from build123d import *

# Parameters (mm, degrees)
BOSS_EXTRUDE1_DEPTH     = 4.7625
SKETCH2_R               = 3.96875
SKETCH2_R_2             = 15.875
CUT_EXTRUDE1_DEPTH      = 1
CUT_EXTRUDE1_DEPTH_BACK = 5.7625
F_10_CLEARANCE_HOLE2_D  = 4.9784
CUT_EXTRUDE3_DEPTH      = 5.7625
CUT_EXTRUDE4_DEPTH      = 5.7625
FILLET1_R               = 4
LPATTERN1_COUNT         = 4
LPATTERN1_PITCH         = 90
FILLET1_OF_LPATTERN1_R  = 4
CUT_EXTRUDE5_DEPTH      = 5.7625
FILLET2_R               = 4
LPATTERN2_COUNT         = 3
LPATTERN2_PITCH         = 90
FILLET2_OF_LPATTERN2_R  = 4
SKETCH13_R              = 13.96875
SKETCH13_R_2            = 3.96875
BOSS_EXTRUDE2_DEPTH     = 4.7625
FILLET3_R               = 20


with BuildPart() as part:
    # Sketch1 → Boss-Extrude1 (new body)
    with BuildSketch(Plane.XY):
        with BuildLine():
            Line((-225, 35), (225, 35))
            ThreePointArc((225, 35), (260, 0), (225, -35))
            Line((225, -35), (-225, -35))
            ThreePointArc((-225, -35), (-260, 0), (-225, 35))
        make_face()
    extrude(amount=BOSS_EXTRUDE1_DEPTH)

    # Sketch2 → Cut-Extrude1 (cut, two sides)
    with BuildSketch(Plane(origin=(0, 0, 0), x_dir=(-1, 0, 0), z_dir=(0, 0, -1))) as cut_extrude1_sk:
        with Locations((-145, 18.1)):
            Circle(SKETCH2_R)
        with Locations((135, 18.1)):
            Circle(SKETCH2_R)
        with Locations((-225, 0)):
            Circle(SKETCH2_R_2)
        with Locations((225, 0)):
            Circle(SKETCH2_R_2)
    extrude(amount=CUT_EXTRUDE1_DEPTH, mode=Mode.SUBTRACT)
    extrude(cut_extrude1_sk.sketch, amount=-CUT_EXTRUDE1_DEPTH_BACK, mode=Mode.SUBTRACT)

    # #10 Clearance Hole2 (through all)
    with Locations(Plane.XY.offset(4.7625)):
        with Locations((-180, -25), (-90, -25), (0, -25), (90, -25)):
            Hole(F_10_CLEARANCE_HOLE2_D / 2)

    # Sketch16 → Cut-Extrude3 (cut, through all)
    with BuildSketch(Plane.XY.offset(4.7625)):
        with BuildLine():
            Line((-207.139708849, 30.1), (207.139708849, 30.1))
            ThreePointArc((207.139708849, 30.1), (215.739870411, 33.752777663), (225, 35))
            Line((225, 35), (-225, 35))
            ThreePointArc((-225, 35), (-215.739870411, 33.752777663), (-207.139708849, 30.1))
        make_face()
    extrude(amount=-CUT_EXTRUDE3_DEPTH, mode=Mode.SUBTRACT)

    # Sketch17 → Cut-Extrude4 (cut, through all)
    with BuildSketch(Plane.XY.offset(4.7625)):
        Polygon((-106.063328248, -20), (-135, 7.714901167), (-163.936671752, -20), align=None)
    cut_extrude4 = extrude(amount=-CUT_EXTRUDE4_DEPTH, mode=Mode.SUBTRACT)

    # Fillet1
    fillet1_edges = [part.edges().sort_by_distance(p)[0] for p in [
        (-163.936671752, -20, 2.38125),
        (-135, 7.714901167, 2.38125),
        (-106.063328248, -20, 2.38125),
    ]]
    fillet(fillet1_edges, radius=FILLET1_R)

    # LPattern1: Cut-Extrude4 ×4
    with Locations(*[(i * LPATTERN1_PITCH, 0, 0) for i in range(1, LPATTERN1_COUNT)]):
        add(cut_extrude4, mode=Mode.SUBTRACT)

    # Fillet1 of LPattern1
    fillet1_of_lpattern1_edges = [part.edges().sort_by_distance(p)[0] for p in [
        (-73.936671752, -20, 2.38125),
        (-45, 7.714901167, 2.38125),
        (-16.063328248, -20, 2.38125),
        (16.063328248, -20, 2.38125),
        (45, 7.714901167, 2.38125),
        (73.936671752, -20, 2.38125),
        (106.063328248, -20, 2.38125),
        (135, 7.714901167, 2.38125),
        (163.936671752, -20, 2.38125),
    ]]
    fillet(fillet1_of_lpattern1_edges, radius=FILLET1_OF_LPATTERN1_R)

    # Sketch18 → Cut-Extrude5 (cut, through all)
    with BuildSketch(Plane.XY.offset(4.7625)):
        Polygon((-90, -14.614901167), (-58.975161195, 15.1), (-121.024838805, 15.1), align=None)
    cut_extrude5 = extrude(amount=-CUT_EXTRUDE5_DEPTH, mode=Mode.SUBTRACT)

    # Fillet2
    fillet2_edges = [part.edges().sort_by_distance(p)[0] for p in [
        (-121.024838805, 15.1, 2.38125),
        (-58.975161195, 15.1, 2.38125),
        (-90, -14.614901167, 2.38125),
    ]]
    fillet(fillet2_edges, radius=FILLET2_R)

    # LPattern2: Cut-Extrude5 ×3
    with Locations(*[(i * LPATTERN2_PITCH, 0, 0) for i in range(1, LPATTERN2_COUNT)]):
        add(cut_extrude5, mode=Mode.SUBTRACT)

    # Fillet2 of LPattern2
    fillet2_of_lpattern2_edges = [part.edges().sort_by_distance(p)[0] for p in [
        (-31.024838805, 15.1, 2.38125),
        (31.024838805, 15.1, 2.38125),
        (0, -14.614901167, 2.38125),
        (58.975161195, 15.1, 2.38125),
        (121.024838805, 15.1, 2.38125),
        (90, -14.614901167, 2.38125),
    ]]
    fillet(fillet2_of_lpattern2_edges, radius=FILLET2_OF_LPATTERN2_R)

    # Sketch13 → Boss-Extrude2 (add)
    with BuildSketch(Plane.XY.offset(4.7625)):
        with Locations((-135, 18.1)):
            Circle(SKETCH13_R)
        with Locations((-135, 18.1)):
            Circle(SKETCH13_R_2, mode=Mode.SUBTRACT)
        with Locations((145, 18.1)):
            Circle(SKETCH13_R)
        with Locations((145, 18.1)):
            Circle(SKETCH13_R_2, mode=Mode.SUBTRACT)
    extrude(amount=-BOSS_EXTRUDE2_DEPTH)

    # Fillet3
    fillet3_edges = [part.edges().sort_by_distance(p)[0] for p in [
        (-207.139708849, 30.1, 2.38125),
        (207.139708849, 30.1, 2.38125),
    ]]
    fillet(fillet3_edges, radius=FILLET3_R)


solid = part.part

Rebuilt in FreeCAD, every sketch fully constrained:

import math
import FreeCAD as App
import Part
import Sketcher


def edges_at(feature, points):
    """Names of the edges that pass closest to the given points."""
    edges = feature.Shape.Edges
    near = lambda p: min(range(len(edges)), key=lambda i: edges[i].distToShape(Part.Vertex(*p))[0])
    return sorted({f"Edge{near(p) + 1}" for p in points})

doc = App.newDocument("Part")
body = doc.addObject("PartDesign::Body", "Body")

# Sketch on XY plane
sketch1 = body.newObject("Sketcher::SketchObject", "Sketch")
sketch1.AttachmentSupport = (doc.getObject("XY_Plane"), [""])
sketch1.MapMode = "FlatFace"
sketch1.addGeometry([
    Part.LineSegment(App.Vector(225, 35, 0), App.Vector(-225, 35, 0)),
    Part.ArcOfCircle(Part.Circle(App.Vector(-225, 0, 0), App.Vector(0, 0, 1), 35), math.radians(90), math.radians(270)),
    Part.LineSegment(App.Vector(-225, -35, 0), App.Vector(225, -35, 0)),
    Part.ArcOfCircle(Part.Circle(App.Vector(225, 0, 0), App.Vector(0, 0, 1), 35), math.radians(-90), math.radians(90)),
], False)
sketch1.addConstraint([
    Sketcher.Constraint("Tangent", 0, 2, 1, 1),
    Sketcher.Constraint("Tangent", 1, 2, 2, 1),
    Sketcher.Constraint("Tangent", 2, 2, 3, 1),
    Sketcher.Constraint("Tangent", 3, 2, 0, 1),
    Sketcher.Constraint("Horizontal", 0),
    Sketcher.Constraint("Horizontal", 2),
    Sketcher.Constraint("Symmetric", 1, 3, 3, 3, -1, 1),
    Sketcher.Constraint("Radius", 1, 35.0),
    Sketcher.Constraint("DistanceX", 0, 2, 0, 1, 450.0),
])
pad1 = body.newObject("PartDesign::Pad", "Pad")
pad1.Profile = sketch1
pad1.Length = 4.7625

# Sketch on XY plane
sketch2 = body.newObject("Sketcher::SketchObject", "Sketch001")
sketch2.AttachmentSupport = (doc.getObject("XY_Plane"), [""])
sketch2.MapMode = "FlatFace"
sketch2.addGeometry([
    Part.Circle(App.Vector(145, 18.1, 0), App.Vector(0, 0, 1), 4),
    Part.Circle(App.Vector(-135, 18.1, 0), App.Vector(0, 0, 1), 4),
    Part.Circle(App.Vector(225, 0, 0), App.Vector(0, 0, 1), 15.9),
    Part.Circle(App.Vector(-225, 0, 0), App.Vector(0, 0, 1), 15.9),
], False)
sketch2.addConstraint([
    Sketcher.Constraint("Equal", 0, 1),
    Sketcher.Constraint("Equal", 2, 3),
    Sketcher.Constraint("Symmetric", 2, 3, 3, 3, -1, 1),
    Sketcher.Constraint("PointOnObject", 2, 3, -1),
    Sketcher.Constraint("Horizontal", 0, 3, 1, 3),
    Sketcher.Constraint("Diameter", 2, 31.75),
    Sketcher.Constraint("DistanceX", -1, 1, 0, 3, 145.0),
    Sketcher.Constraint("DistanceX", 1, 3, -1, 1, 135.0),
    Sketcher.Constraint("DistanceX", -1, 1, 2, 3, 225.0),
    Sketcher.Constraint("Diameter", 0, 7.9375),
    Sketcher.Constraint("DistanceY", -1, 1, 0, 3, 18.1),
])
pocket1 = body.newObject("PartDesign::Pocket", "Pocket")
pocket1.Profile = sketch2
pocket1.Type = "ThroughAll"
pocket1.Midplane = True

# Sketch on XY plane
sketch3 = body.newObject("Sketcher::SketchObject", "Sketch002")
sketch3.AttachmentSupport = (doc.getObject("XY_Plane"), [""])
sketch3.MapMode = "FlatFace"
sketch3.AttachmentOffset = App.Placement(App.Vector(0, 0, 4.7625), App.Rotation())
sketch3.addGeometry([
    Part.Circle(App.Vector(-180, -25, 0), App.Vector(0, 0, 1), 2.5),
    Part.Circle(App.Vector(-90, -25, 0), App.Vector(0, 0, 1), 2.5),
    Part.Circle(App.Vector(0, -25, 0), App.Vector(0, 0, 1), 2.5),
    Part.Circle(App.Vector(90, -25, 0), App.Vector(0, 0, 1), 2.5),
], False)
sketch3.addConstraint([
    Sketcher.Constraint("Equal", 0, 1),
    Sketcher.Constraint("Equal", 1, 2),
    Sketcher.Constraint("Equal", 2, 3),
    Sketcher.Constraint("Symmetric", 1, 3, 3, 3, -2),
    Sketcher.Constraint("PointOnObject", 2, 3, -2),
    Sketcher.Constraint("Horizontal", 0, 3, 1, 3),
    Sketcher.Constraint("Horizontal", 1, 3, 2, 3),
    Sketcher.Constraint("DistanceX", 0, 3, -1, 1, 180.0),
    Sketcher.Constraint("DistanceY", 0, 3, -1, 1, 25.0),
    Sketcher.Constraint("DistanceX", 1, 3, -1, 1, 90.0),
    Sketcher.Constraint("Diameter", 0, 4.9784),
])
doc.recompute()
hole = body.newObject("PartDesign::Hole", "Hole")
hole.Profile = sketch3
hole.ThreadType = "None"
hole.Diameter = 4.9784
hole.DepthType = "ThroughAll"

# Sketch on XY plane
sketch4 = body.newObject("Sketcher::SketchObject", "Sketch003")
sketch4.AttachmentSupport = (doc.getObject("XY_Plane"), [""])
sketch4.MapMode = "FlatFace"
sketch4.AttachmentOffset = App.Placement(App.Vector(0, 0, 4.7625), App.Rotation())
sketch4.addGeometry([
    Part.LineSegment(App.Vector(-207, 30, 0), App.Vector(207, 30, 0)),
    Part.ArcOfCircle(Part.Circle(App.Vector(225, 0, 0), App.Vector(0, 0, 1), 35), math.radians(90), math.radians(121)),
    Part.LineSegment(App.Vector(225, 35, 0), App.Vector(-225, 35, 0)),
    Part.ArcOfCircle(Part.Circle(App.Vector(-225, 0, 0), App.Vector(0, 0, 1), 35), math.radians(59), math.radians(90)),
], False)
sketch4.addConstraint([
    Sketcher.Constraint("Coincident", 0, 2, 1, 2),
    Sketcher.Constraint("Tangent", 1, 1, 2, 1),
    Sketcher.Constraint("Tangent", 2, 2, 3, 2),
    Sketcher.Constraint("Coincident", 3, 1, 0, 1),
    Sketcher.Constraint("Horizontal", 0),
    Sketcher.Constraint("Horizontal", 2),
    Sketcher.Constraint("Equal", 1, 3),
    Sketcher.Constraint("Symmetric", 1, 3, 3, 3, -1, 1),
    Sketcher.Constraint("Radius", 1, 35.0),
    Sketcher.Constraint("DistanceX", 2, 2, 2, 1, 450.0),
    Sketcher.Constraint("DistanceY", -1, 1, 0, 2, 30.1),
])
pocket2 = body.newObject("PartDesign::Pocket", "Pocket001")
pocket2.Profile = sketch4
pocket2.Type = "ThroughAll"

# Sketch on XY plane
sketch5 = body.newObject("Sketcher::SketchObject", "Sketch004")
sketch5.AttachmentSupport = (doc.getObject("XY_Plane"), [""])
sketch5.MapMode = "FlatFace"
sketch5.AttachmentOffset = App.Placement(App.Vector(0, 0, 4.7625), App.Rotation())
sketch5.addGeometry([
    Part.LineSegment(App.Vector(-106, -20, 0), App.Vector(-135, 8, 0)),
    Part.LineSegment(App.Vector(-135, 8, 0), App.Vector(-164, -20, 0)),
    Part.LineSegment(App.Vector(-164, -20, 0), App.Vector(-106, -20, 0)),
], False)
sketch5.addConstraint([
    Sketcher.Constraint("Coincident", 0, 2, 1, 1),
    Sketcher.Constraint("Coincident", 1, 2, 2, 1),
    Sketcher.Constraint("Coincident", 2, 2, 0, 1),
    Sketcher.Constraint("Horizontal", 2),
    Sketcher.Constraint("Equal", 0, 1),
    Sketcher.Constraint("DistanceX", 0, 2, -1, 1, 135.0),
    Sketcher.Constraint("DistanceY", 1, 2, -1, 1, 20.0),
    Sketcher.Constraint("DistanceY", -1, 1, 0, 2, 7.714901),
    Sketcher.Constraint("DistanceX", 2, 1, 2, 2, 57.873344),
])
pocket3 = body.newObject("PartDesign::Pocket", "Pocket002")
pocket3.Profile = sketch5
pocket3.Type = "ThroughAll"
doc.recompute()

fillet = body.newObject("PartDesign::Fillet", "Fillet")
fillet.Base = (pocket3, edges_at(pocket3, [(-163.937, -20, 2.381), (-135, 7.715, 2.381), (-106.063, -20, 2.381)]))
fillet.Radius = 4
doc.recompute()

linearpattern = body.newObject("PartDesign::LinearPattern", "LinearPattern")
linearpattern.Originals = [pocket3]
linearpattern.Direction = (doc.getObject("X_Axis"), [""])
linearpattern.Mode = "offset"
linearpattern.Offset = 90
linearpattern.Occurrences = 4
body.Tip = linearpattern
doc.recompute()

fillet2 = body.newObject("PartDesign::Fillet", "Fillet001")
fillet2.Base = (linearpattern, edges_at(linearpattern, [
    (-73.937, -20, 2.381),
    (-45, 7.715, 2.381),
    (-16.063, -20, 2.381),
    (16.063, -20, 2.381),
    (45, 7.715, 2.381),
    (73.937, -20, 2.381),
    (106.063, -20, 2.381),
    (135, 7.715, 2.381),
    (163.937, -20, 2.381),
]))
fillet2.Radius = 4

# Sketch on XY plane
sketch6 = body.newObject("Sketcher::SketchObject", "Sketch005")
sketch6.AttachmentSupport = (doc.getObject("XY_Plane"), [""])
sketch6.MapMode = "FlatFace"
sketch6.AttachmentOffset = App.Placement(App.Vector(0, 0, 4.7625), App.Rotation())
sketch6.addGeometry([
    Part.LineSegment(App.Vector(-90, -15, 0), App.Vector(-59, 15, 0)),
    Part.LineSegment(App.Vector(-59, 15, 0), App.Vector(-121, 15, 0)),
    Part.LineSegment(App.Vector(-121, 15, 0), App.Vector(-90, -15, 0)),
], False)
sketch6.addConstraint([
    Sketcher.Constraint("Coincident", 0, 2, 1, 1),
    Sketcher.Constraint("Coincident", 1, 2, 2, 1),
    Sketcher.Constraint("Coincident", 2, 2, 0, 1),
    Sketcher.Constraint("Horizontal", 1),
    Sketcher.Constraint("Equal", 0, 2),
    Sketcher.Constraint("DistanceX", 2, 2, -1, 1, 90.0),
    Sketcher.Constraint("DistanceY", -1, 1, 0, 2, 15.1),
    Sketcher.Constraint("DistanceY", 2, 2, -1, 1, 14.614901),
    Sketcher.Constraint("Distance", 0, 42.959469),
])
pocket4 = body.newObject("PartDesign::Pocket", "Pocket003")
pocket4.Profile = sketch6
pocket4.Type = "ThroughAll"
doc.recompute()

fillet3 = body.newObject("PartDesign::Fillet", "Fillet002")
fillet3.Base = (pocket4, edges_at(pocket4, [(-121.025, 15.1, 2.381), (-58.975, 15.1, 2.381), (-90, -14.615, 2.381)]))
fillet3.Radius = 4
doc.recompute()

linearpattern2 = body.newObject("PartDesign::LinearPattern", "LinearPattern001")
linearpattern2.Originals = [pocket4]
linearpattern2.Direction = (doc.getObject("X_Axis"), [""])
linearpattern2.Mode = "offset"
linearpattern2.Offset = 90
linearpattern2.Occurrences = 3
body.Tip = linearpattern2
doc.recompute()

fillet4 = body.newObject("PartDesign::Fillet", "Fillet003")
fillet4.Base = (linearpattern2, edges_at(linearpattern2, [
    (-31.025, 15.1, 2.381),
    (31.025, 15.1, 2.381),
    (0, -14.615, 2.381),
    (58.975, 15.1, 2.381),
    (121.025, 15.1, 2.381),
    (90, -14.615, 2.381),
]))
fillet4.Radius = 4

# Sketch on XY plane
sketch7 = body.newObject("Sketcher::SketchObject", "Sketch006")
sketch7.AttachmentSupport = (doc.getObject("XY_Plane"), [""])
sketch7.MapMode = "FlatFace"
sketch7.AttachmentOffset = App.Placement(App.Vector(0, 0, 4.7625), App.Rotation())
sketch7.addGeometry([
    Part.Circle(App.Vector(-135, 18.1, 0), App.Vector(0, 0, 1), 14),
    Part.Circle(App.Vector(-135, 18.1, 0), App.Vector(0, 0, 1), 4),
    Part.Circle(App.Vector(145, 18.1, 0), App.Vector(0, 0, 1), 14),
    Part.Circle(App.Vector(145, 18.1, 0), App.Vector(0, 0, 1), 4),
], False)
sketch7.addConstraint([
    Sketcher.Constraint("Coincident", 1, 3, 0, 3),
    Sketcher.Constraint("Coincident", 3, 3, 2, 3),
    Sketcher.Constraint("Equal", 0, 2),
    Sketcher.Constraint("Equal", 1, 3),
    Sketcher.Constraint("Horizontal", 1, 3, 2, 3),
    Sketcher.Constraint("DistanceX", 0, 3, -1, 1, 135.0),
    Sketcher.Constraint("DistanceX", -1, 1, 2, 3, 145.0),
    Sketcher.Constraint("Diameter", 0, 27.9375),
    Sketcher.Constraint("Diameter", 1, 7.9375),
    Sketcher.Constraint("DistanceY", -1, 1, 0, 3, 18.1),
])
pad2 = body.newObject("PartDesign::Pad", "Pad001")
pad2.Profile = sketch7
pad2.Length = 4.7625
pad2.Reversed = True
doc.recompute()

fillet5 = body.newObject("PartDesign::Fillet", "Fillet004")
fillet5.Base = (pad2, edges_at(pad2, [(-207.14, 30.1, 2.381), (207.14, 30.1, 2.381)]))
fillet5.Radius = 20

doc.recompute()
